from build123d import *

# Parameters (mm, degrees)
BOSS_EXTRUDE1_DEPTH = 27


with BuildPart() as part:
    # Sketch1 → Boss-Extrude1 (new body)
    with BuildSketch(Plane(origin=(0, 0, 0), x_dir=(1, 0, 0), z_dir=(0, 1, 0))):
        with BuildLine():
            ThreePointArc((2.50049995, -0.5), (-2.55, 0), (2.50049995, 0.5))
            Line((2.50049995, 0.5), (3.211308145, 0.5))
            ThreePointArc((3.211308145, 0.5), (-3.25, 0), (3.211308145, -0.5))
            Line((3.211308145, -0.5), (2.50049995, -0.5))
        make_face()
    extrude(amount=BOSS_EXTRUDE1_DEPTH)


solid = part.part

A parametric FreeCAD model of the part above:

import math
import FreeCAD as App
import Part
import Sketcher
from FreeCAD import Vector

doc = App.newDocument("Part")
body = doc.addObject("PartDesign::Body", "Body")

sketch1 = doc.addObject("Sketcher::SketchObject", "Sketch")
body.addObject(sketch1)
sketch1.AttachmentSupport = (doc.XZ_Plane, [""])
sketch1.MapMode = "FlatFace"
sketch1.addGeometry([
    Part.ArcOfCircle(Part.Circle(Vector(0, 0, 0), Vector(0, 0, 1), 2.55), math.radians(11.307729), math.radians(348.692271)),
    Part.LineSegment(Vector(2.5005, -0.5, 0), Vector(3.211308, -0.5, 0)),
    Part.ArcOfCircle(Part.Circle(Vector(0, 0, 0), Vector(0, 0, 1), 3.25), math.radians(8.849883), math.radians(351.150117)),
    Part.LineSegment(Vector(3.211308, 0.5, 0), Vector(2.5005, 0.5, 0)),
], False)
sketch1.addConstraint([
    Sketcher.Constraint("Coincident", 0, 2, 1, 1),
    Sketcher.Constraint("Coincident", 1, 2, 2, 2),
    Sketcher.Constraint("Coincident", 2, 1, 3, 1),
    Sketcher.Constraint("Coincident", 3, 2, 0, 1),
    Sketcher.Constraint("Horizontal", 1),
    Sketcher.Constraint("Horizontal", 3),
    Sketcher.Constraint("Coincident", 0, 3, -1, 1),
    Sketcher.Constraint("Coincident", 2, 3, -1, 1),
    Sketcher.Constraint("Vertical", 1, 2, 2, 1),
    Sketcher.Constraint("Radius", 0, 2.55),
    Sketcher.Constraint("Radius", 2, 3.25),
    Sketcher.Constraint("DistanceY", 1, 2, 2, 1, 1.0),
])
pad1 = doc.addObject("PartDesign::Pad", "Pad")
body.addObject(pad1)
pad1.Profile = sketch1
pad1.Length = 27
pad1.Reversed = True

doc.recompute()
